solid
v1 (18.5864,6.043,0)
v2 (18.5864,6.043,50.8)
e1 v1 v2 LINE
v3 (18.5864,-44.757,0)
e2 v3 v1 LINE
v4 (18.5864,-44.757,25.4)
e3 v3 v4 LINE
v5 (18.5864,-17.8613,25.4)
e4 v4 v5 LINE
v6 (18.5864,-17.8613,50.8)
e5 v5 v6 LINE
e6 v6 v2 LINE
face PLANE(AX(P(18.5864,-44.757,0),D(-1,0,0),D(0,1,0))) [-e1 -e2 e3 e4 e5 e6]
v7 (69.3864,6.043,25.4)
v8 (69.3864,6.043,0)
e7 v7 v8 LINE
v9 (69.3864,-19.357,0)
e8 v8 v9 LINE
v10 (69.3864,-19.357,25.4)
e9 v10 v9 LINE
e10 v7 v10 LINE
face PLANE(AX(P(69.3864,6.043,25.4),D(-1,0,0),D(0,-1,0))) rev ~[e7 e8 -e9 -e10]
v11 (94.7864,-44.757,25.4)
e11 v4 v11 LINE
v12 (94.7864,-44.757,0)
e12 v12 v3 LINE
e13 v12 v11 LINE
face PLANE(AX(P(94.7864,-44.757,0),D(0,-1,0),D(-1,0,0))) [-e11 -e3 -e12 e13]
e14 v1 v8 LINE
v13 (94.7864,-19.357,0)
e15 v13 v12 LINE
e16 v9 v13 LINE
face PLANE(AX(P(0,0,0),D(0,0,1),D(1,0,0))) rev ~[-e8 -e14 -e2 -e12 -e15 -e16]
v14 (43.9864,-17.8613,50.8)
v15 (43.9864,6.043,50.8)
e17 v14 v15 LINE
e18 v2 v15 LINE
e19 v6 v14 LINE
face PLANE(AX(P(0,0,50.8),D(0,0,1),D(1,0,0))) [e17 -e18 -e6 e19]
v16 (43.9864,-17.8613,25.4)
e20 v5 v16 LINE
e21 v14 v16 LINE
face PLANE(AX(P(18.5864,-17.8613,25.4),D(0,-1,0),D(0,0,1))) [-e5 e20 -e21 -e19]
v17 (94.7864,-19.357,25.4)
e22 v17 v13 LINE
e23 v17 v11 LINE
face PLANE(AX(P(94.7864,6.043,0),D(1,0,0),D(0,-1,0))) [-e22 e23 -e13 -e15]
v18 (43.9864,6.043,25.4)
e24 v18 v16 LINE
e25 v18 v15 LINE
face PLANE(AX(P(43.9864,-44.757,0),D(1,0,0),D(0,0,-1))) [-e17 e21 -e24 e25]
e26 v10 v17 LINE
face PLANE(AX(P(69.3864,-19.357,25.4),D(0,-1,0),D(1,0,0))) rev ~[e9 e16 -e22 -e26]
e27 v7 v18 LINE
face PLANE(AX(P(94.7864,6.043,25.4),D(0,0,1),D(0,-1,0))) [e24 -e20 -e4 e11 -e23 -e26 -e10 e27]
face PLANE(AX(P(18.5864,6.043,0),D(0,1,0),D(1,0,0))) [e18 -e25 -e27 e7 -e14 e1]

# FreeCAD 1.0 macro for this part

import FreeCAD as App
import Part
import Sketcher

V = App.Vector
Q = App.Units.Quantity


def add_polygon(sketch, points):
    """Adds a closed chain of lines whose ends are joined by coincident constraints."""
    first, n = sketch.GeometryCount, len(points)
    for a, b in zip(points, points[1:] + points[:1]):
        sketch.addGeometry(Part.LineSegment(App.Vector(*a, 0), App.Vector(*b, 0)), False)
    for i in range(n):
        sketch.addConstraint(Sketcher.Constraint("Coincident", first + i, 2, first + (i + 1) % n, 1))

doc = App.newDocument("Part")
body = doc.addObject("PartDesign::Body", "Body")

# Sketch on XY plane
sketch1 = doc.addObject("Sketcher::SketchObject", "Sketch")
body.addObject(sketch1)
sketch1.AttachmentSupport = (doc.XY_Plane, [""])
sketch1.MapMode = "FlatFace"
add_polygon(sketch1, [(95, 6), (19, 6), (19, -45), (95, -45)])  # lines 0-3
sketch1.addConstraint([
    Sketcher.Constraint("Horizontal", 0),
    Sketcher.Constraint("Vertical", 1),
    Sketcher.Constraint("Horizontal", 2),
    Sketcher.Constraint("Vertical", 3),
    Sketcher.Constraint("DistanceX", 0, 2, 0, 1, Q("3 in")),
    Sketcher.Constraint("DistanceY", 1, 2, 1, 1, Q("2 in")),
    Sketcher.Constraint("DistanceX", -1, 1, 0, 2, Q("18.5864 mm")),
    Sketcher.Constraint("DistanceY", -1, 1, 0, 2, Q("6.043 mm")),
])
pad1 = doc.addObject("PartDesign::Pad", "Pad")
body.addObject(pad1)
pad1.Profile = sketch1
pad1.Length = Q("2 in")

# Sketch on YZ plane
sketch2 = doc.addObject("Sketcher::SketchObject", "Sketch001")
body.addObject(sketch2)
sketch2.AttachmentSupport = (doc.YZ_Plane, [""])
sketch2.MapMode = "FlatFace"
sketch2.AttachmentOffset = App.Placement(V(0, 0, 94.7864), App.Rotation())
add_polygon(sketch2, [(-45, 25), (6, 25), (6, 51), (-45, 51)])  # lines 0-3
sketch2.addConstraint([
    Sketcher.Constraint("Horizontal", 0),
    Sketcher.Constraint("Vertical", 1),
    Sketcher.Constraint("Horizontal", 2),
    Sketcher.Constraint("Vertical", 3),
    Sketcher.Constraint("DistanceY", 1, 1, 1, 2, Q("1 in")),
    Sketcher.Constraint("DistanceY", -1, 1, 0, 2, Q("1 in")),
    Sketcher.Constraint("DistanceX", 0, 1, 0, 2, Q("2 in")),
    Sketcher.Constraint("DistanceX", -1, 1, 0, 2, Q("6.043 mm")),
])
pocket1 = doc.addObject("PartDesign::Pocket", "Pocket")
body.addObject(pocket1)
pocket1.Profile = sketch2
pocket1.Length = Q("2 in")

# Sketch on YZ plane
sketch3 = doc.addObject("Sketcher::SketchObject", "Sketch002")
body.addObject(sketch3)
sketch3.AttachmentSupport = (doc.YZ_Plane, [""])
sketch3.MapMode = "FlatFace"
sketch3.AttachmentOffset = App.Placement(V(0, 0, 18.5864), App.Rotation())
add_polygon(sketch3, [(-18, 25), (-45, 25), (-45, 51), (-18, 51)])  # lines 0-3
sketch3.addConstraint([
    Sketcher.Constraint("Horizontal", 0),
    Sketcher.Constraint("Vertical", 1),
    Sketcher.Constraint("Horizontal", 2),
    Sketcher.Constraint("Vertical", 3),
    Sketcher.Constraint("DistanceY", 1, 1, 1, 2, Q("1 in")),
    Sketcher.Constraint("DistanceY", -1, 1, 0, 2, Q("1 in")),
    Sketcher.Constraint("DistanceX", 0, 2, 0, 1, Q("26.8957 mm")),
    Sketcher.Constraint("DistanceX", 2, 2, -1, 1, Q("0.7032 in")),
])
pocket2 = doc.addObject("PartDesign::Pocket", "Pocket001")
body.addObject(pocket2)
pocket2.Profile = sketch3
pocket2.Length = Q("2 in")
pocket2.Reversed = True

# Sketch on XY plane
sketch4 = doc.addObject("Sketcher::SketchObject", "Sketch003")
body.addObject(sketch4)
sketch4.AttachmentSupport = (doc.XY_Plane, [""])
sketch4.MapMode = "FlatFace"
sketch4.AttachmentOffset = App.Placement(V(0, 0, 1 * 25.4), App.Rotation())
add_polygon(sketch4, [(95, 6), (69, 6), (69, -19), (95, -19)])  # lines 0-3
sketch4.addConstraint([
    Sketcher.Constraint("Horizontal", 0),
    Sketcher.Constraint("Vertical", 1),
    Sketcher.Constraint("Horizontal", 2),
    Sketcher.Constraint("Vertical", 3),
    Sketcher.Constraint("Equal", 2, 1),
    Sketcher.Constraint("DistanceX", 0, 2, 0, 1, Q("1 in")),
    Sketcher.Constraint("DistanceX", -1, 1, 0, 2, Q("69.3864 mm")),
    Sketcher.Constraint("DistanceY", -1, 1, 0, 2, Q("6.043 mm")),
])
pocket3 = doc.addObject("PartDesign::Pocket", "Pocket002")
body.addObject(pocket3)
pocket3.Profile = sketch4
pocket3.Length = Q("2 in")

doc.recompute()
